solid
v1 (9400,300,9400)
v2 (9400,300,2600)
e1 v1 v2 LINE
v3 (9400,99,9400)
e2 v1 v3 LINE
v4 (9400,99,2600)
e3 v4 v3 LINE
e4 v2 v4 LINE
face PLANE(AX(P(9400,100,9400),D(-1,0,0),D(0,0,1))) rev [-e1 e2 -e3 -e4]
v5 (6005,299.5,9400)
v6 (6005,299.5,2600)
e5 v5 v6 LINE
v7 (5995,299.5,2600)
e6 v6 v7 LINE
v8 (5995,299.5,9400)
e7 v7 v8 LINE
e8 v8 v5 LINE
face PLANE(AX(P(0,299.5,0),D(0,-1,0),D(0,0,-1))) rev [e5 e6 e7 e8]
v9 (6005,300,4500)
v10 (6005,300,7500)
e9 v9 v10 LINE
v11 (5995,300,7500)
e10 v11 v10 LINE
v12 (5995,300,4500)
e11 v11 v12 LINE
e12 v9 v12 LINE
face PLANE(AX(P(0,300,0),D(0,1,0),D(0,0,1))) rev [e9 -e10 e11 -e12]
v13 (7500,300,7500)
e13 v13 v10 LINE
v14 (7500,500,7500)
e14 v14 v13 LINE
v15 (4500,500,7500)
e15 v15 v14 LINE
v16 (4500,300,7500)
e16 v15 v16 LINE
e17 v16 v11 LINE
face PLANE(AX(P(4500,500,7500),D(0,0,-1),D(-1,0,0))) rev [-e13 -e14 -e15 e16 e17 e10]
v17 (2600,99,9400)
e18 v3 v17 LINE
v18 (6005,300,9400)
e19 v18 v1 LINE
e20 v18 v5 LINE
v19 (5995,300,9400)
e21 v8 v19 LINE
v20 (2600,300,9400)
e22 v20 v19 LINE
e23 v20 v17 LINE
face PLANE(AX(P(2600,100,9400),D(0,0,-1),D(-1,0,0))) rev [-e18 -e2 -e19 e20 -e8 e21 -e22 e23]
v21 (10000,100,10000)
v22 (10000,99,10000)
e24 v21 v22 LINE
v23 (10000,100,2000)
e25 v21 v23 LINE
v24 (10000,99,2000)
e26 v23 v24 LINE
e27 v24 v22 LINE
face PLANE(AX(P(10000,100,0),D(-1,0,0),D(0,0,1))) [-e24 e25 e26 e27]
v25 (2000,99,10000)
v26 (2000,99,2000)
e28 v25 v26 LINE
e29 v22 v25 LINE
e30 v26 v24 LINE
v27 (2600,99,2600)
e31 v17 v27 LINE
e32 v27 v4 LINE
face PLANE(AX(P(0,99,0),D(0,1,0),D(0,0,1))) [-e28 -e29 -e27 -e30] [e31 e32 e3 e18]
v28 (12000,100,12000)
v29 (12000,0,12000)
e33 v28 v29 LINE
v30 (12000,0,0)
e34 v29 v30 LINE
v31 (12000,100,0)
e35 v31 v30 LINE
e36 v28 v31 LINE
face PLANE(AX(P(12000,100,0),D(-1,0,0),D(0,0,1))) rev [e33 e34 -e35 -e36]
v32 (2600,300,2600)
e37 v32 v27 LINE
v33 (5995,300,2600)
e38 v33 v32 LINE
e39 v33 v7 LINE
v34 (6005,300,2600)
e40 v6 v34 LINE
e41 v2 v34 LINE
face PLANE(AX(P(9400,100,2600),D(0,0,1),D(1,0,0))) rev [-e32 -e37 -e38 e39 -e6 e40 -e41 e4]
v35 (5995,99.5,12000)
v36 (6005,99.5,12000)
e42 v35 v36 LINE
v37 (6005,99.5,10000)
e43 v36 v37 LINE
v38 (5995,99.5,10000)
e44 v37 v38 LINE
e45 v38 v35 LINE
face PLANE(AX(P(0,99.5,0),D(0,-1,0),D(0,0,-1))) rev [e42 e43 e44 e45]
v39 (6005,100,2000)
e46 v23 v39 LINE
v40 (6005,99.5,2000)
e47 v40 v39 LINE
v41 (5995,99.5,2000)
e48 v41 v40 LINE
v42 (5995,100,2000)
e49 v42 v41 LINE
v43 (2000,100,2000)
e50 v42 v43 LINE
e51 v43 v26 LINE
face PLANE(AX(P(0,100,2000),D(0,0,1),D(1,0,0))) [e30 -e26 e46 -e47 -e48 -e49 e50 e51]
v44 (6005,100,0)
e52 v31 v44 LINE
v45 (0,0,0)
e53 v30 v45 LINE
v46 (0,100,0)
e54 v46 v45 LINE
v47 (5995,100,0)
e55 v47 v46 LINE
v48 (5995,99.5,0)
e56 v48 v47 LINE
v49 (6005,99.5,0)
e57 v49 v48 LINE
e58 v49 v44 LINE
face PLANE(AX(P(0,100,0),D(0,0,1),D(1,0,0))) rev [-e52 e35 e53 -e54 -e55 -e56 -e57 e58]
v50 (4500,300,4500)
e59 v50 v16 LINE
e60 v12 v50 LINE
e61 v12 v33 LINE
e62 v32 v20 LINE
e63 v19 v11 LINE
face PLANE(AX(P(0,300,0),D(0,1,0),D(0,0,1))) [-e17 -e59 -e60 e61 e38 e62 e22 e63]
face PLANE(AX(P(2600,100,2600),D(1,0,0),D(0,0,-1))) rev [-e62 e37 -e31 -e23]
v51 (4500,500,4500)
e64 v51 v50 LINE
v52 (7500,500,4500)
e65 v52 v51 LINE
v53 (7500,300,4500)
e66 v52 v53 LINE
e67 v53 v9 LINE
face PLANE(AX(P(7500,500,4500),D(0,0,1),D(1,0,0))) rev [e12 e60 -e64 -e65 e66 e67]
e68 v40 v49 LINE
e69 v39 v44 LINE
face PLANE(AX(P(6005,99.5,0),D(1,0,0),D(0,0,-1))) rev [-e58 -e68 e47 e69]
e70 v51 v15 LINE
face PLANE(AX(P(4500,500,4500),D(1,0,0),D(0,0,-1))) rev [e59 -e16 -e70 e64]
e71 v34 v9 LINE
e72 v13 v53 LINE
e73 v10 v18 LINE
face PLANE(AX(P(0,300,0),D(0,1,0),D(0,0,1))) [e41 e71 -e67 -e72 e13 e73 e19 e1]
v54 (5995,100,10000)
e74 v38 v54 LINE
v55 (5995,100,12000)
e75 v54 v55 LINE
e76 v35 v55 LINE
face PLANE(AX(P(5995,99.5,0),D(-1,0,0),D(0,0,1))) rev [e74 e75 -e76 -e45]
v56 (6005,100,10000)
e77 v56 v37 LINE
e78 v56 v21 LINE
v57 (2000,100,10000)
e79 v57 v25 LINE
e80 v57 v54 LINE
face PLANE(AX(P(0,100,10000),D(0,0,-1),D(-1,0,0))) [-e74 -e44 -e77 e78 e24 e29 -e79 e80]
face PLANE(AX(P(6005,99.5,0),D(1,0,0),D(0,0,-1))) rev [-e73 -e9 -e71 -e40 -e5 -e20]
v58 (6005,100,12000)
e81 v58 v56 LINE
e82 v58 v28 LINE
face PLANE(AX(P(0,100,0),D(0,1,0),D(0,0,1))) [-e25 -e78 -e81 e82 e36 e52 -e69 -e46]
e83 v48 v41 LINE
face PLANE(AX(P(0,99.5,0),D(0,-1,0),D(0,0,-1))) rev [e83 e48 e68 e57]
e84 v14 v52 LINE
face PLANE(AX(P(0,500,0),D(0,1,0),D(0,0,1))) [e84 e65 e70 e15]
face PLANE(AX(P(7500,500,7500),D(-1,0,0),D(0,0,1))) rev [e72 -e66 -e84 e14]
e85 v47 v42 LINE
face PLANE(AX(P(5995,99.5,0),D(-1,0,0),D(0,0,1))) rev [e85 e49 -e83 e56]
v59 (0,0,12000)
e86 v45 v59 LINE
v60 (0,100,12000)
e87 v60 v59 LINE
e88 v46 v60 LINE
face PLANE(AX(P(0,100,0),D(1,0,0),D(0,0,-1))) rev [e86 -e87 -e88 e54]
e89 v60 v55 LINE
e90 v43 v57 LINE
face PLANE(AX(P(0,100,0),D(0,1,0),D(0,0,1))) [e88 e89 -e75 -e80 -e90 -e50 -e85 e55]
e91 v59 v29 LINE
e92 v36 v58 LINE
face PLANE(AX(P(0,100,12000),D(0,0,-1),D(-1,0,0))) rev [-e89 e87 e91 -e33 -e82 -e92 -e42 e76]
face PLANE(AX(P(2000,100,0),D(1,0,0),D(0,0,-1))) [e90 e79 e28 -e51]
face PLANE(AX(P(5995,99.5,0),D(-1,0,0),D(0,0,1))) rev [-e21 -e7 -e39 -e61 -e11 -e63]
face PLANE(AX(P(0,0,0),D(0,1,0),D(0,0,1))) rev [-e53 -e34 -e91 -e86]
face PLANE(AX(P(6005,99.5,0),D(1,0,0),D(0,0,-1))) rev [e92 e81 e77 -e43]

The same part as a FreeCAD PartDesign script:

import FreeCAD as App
import Part
import Sketcher

V = App.Vector


def add_polygon(sketch, points):
    """Adds a closed chain of lines whose ends are joined by coincident constraints."""
    first, n = sketch.GeometryCount, len(points)
    for a, b in zip(points, points[1:] + points[:1]):
        sketch.addGeometry(Part.LineSegment(App.Vector(*a, 0), App.Vector(*b, 0)), False)
    for i in range(n):
        sketch.addConstraint(Sketcher.Constraint("Coincident", first + i, 2, first + (i + 1) % n, 1))

doc = App.newDocument("Part")
params = doc.addObject("Spreadsheet::Sheet", "Params")
for row, (alias, value) in enumerate([
    ("sketch1_width", "12000 mm"),
    ("sketch1_width2", "8000 mm"),
    ("pad1_length", "100 mm"),
    ("sketch2_width", "6800 mm"),
    ("pad2_length", "100 mm"),
    ("sketch3_width", "8000 mm"),
    ("sketch3_width2", "6800 mm"),
    ("pad3_length", "99 mm"),
    ("sketch4_width", "10 mm"),
    ("sketch4_height", "12000 mm"),
    ("pocket1_length", "0.5 mm"),
    ("sketch5_width", "3395 mm"),
    ("sketch5_height", "6800 mm"),
    ("pad4_length", "200 mm"),
    ("sketch6_width", "10 mm"),
    ("sketch6_height", "6800 mm"),
    ("pad5_length", "200 mm"),
    ("sketch7_width", "3000 mm"),
    ("pad6_length", "200 mm"),
], start=1):
    params.set(f"A{row}", alias)
    params.set(f"B{row}", "=" + value)
    params.setAlias(f"B{row}", alias)

body = doc.addObject("PartDesign::Body", "Body")

# Sketch on XZ plane
sketch1 = body.newObject("Sketcher::SketchObject", "Sketch")
sketch1.AttachmentSupport = (doc.getObject("XZ_Plane"), [""])
sketch1.MapMode = "FlatFace"
add_polygon(sketch1, [(0, 0), (0, 12000), (12000, 12000), (12000, 0)])  # lines 0-3
add_polygon(sketch1, [(10000, 10000), (2000, 10000), (2000, 2000), (10000, 2000)])  # lines 4-7
sketch1.addConstraint(Sketcher.Constraint("Vertical", 0))
sketch1.addConstraint(Sketcher.Constraint("Horizontal", 1))
sketch1.addConstraint(Sketcher.Constraint("Vertical", 2))
sketch1.addConstraint(Sketcher.Constraint("Horizontal", 3))
sketch1.addConstraint(Sketcher.Constraint("Horizontal", 4))
sketch1.addConstraint(Sketcher.Constraint("Vertical", 5))
sketch1.addConstraint(Sketcher.Constraint("Horizontal", 6))
sketch1.addConstraint(Sketcher.Constraint("Vertical", 7))
sketch1.addConstraint(Sketcher.Constraint("Coincident", 3, 2, -1, 1))
sketch1.addConstraint(Sketcher.Constraint("Equal", 3, 0))
sketch1.addConstraint(Sketcher.Constraint("Equal", 6, 5))
sketch1.addConstraint(Sketcher.Constraint("DistanceX", 1, 1, 1, 2, 12000.0))
sketch1.addConstraint(Sketcher.Constraint("DistanceX", 4, 2, 4, 1, 8000.0))
sketch1.addConstraint(Sketcher.Constraint("DistanceX", -1, 1, 4, 2, 2000.0))
sketch1.addConstraint(Sketcher.Constraint("DistanceY", -1, 1, 4, 2, 10000.0))
sketch1.setExpression("Constraints[19]", "Params.sketch1_width")
sketch1.setExpression("Constraints[20]", "Params.sketch1_width2")
pad1 = body.newObject("PartDesign::Pad", "Pad")
pad1.Profile = sketch1
pad1.setExpression("Length", "Params.pad1_length")
pad1.Reversed = True
body2 = doc.addObject("PartDesign::Body", "Body001")

# Sketch on XZ plane
sketch2 = body2.newObject("Sketcher::SketchObject", "Sketch001")
sketch2.AttachmentSupport = (doc.getObject("XZ_Plane001"), [""])
sketch2.MapMode = "FlatFace"
add_polygon(sketch2, [(2600, 2600), (2600, 9400), (9400, 9400), (9400, 2600)])  # lines 0-3
sketch2.addConstraint(Sketcher.Constraint("Vertical", 0))
sketch2.addConstraint(Sketcher.Constraint("Horizontal", 1))
sketch2.addConstraint(Sketcher.Constraint("Vertical", 2))
sketch2.addConstraint(Sketcher.Constraint("Horizontal", 3))
sketch2.addConstraint(Sketcher.Constraint("Equal", 3, 0))
sketch2.addConstraint(Sketcher.Constraint("DistanceX", 1, 1, 1, 2, 6800.0))
sketch2.addConstraint(Sketcher.Constraint("DistanceX", -1, 1, 0, 2, 2600.0))
sketch2.addConstraint(Sketcher.Constraint("DistanceY", -1, 1, 0, 2, 9400.0))
sketch2.setExpression("Constraints[9]", "Params.sketch2_width")
pad2 = body2.newObject("PartDesign::Pad", "Pad001")
pad2.Profile = sketch2
pad2.setExpression("Length", "Params.pad2_length")
pad2.Reversed = True
body.AllowCompound = True
doc.recompute()

boolean = body.newObject("PartDesign::Boolean", "Boolean")
boolean.Type = "Fuse"
boolean.addObjects([body2])

# Sketch on XZ plane
sketch3 = body.newObject("Sketcher::SketchObject", "Sketch002")
sketch3.AttachmentSupport = (doc.getObject("XZ_Plane"), [""])
sketch3.MapMode = "FlatFace"
add_polygon(sketch3, [(2000, 10000), (2000, 2000), (10000, 2000), (10000, 10000)])  # lines 0-3
add_polygon(sketch3, [(9400, 2600), (2600, 2600), (2600, 9400), (9400, 9400)])  # lines 4-7
sketch3.addConstraint(Sketcher.Constraint("Vertical", 0))
sketch3.addConstraint(Sketcher.Constraint("Horizontal", 1))
sketch3.addConstraint(Sketcher.Constraint("Vertical", 2))
sketch3.addConstraint(Sketcher.Constraint("Horizontal", 3))
sketch3.addConstraint(Sketcher.Constraint("Horizontal", 4))
sketch3.addConstraint(Sketcher.Constraint("Vertical", 5))
sketch3.addConstraint(Sketcher.Constraint("Horizontal", 6))
sketch3.addConstraint(Sketcher.Constraint("Vertical", 7))
sketch3.addConstraint(Sketcher.Constraint("Equal", 3, 0))
sketch3.addConstraint(Sketcher.Constraint("Equal", 6, 5))
sketch3.addConstraint(Sketcher.Constraint("DistanceX", 1, 1, 1, 2, 8000.0))
sketch3.addConstraint(Sketcher.Constraint("DistanceX", 4, 2, 4, 1, 6800.0))
sketch3.addConstraint(Sketcher.Constraint("DistanceX", -1, 1, 0, 2, 2000.0))
sketch3.addConstraint(Sketcher.Constraint("DistanceY", -1, 1, 0, 2, 2000.0))
sketch3.addConstraint(Sketcher.Constraint("DistanceX", -1, 1, 4, 2, 2600.0))
sketch3.addConstraint(Sketcher.Constraint("DistanceY", -1, 1, 4, 2, 2600.0))
sketch3.setExpression("Constraints[18]", "Params.sketch3_width")
sketch3.setExpression("Constraints[19]", "Params.sketch3_width2")
pad3 = body.newObject("PartDesign::Pad", "Pad002")
pad3.Profile = sketch3
pad3.setExpression("Length", "Params.pad3_length")
pad3.Reversed = True

# Sketch on XZ plane
sketch4 = body.newObject("Sketcher::SketchObject", "Sketch003")
sketch4.AttachmentSupport = (doc.getObject("XZ_Plane"), [""])
sketch4.MapMode = "FlatFace"
sketch4.AttachmentOffset = App.Placement(V(0, 0, -100), App.Rotation())
add_polygon(sketch4, [(5995, 0), (5995, 12000), (6005, 12000), (6005, 0)])  # lines 0-3
sketch4.addConstraint(Sketcher.Constraint("Vertical", 0))
sketch4.addConstraint(Sketcher.Constraint("Horizontal", 1))
sketch4.addConstraint(Sketcher.Constraint("Vertical", 2))
sketch4.addConstraint(Sketcher.Constraint("Horizontal", 3))
sketch4.addConstraint(Sketcher.Constraint("PointOnObject", 2, 2, -1))
sketch4.addConstraint(Sketcher.Constraint("DistanceX", 1, 1, 1, 2, 10.0))
sketch4.addConstraint(Sketcher.Constraint("DistanceY", 0, 1, 0, 2, 12000.0))
sketch4.addConstraint(Sketcher.Constraint("DistanceX", -1, 1, 0, 2, 5995.0))
sketch4.setExpression("Constraints[9]", "Params.sketch4_width")
sketch4.setExpression("Constraints[10]", "Params.sketch4_height")
pocket1 = body.newObject("PartDesign::Pocket", "Pocket")
pocket1.Profile = sketch4
pocket1.setExpression("Length", "Params.pocket1_length")
pocket1.Reversed = True

# Sketch on XZ plane
sketch5 = body.newObject("Sketcher::SketchObject", "Sketch004")
sketch5.AttachmentSupport = (doc.getObject("XZ_Plane"), [""])
sketch5.MapMode = "FlatFace"
sketch5.AttachmentOffset = App.Placement(V(0, 0, -100), App.Rotation())
add_polygon(sketch5, [(2600, 2600), (2600, 9400), (5995, 9400), (5995, 2600)])  # lines 0-3
add_polygon(sketch5, [(6005, 2600), (6005, 9400), (9400, 9400), (9400, 2600)])  # lines 4-7
sketch5.addConstraint(Sketcher.Constraint("Vertical", 0))
sketch5.addConstraint(Sketcher.Constraint("Horizontal", 1))
sketch5.addConstraint(Sketcher.Constraint("Vertical", 2))
sketch5.addConstraint(Sketcher.Constraint("Horizontal", 3))
sketch5.addConstraint(Sketcher.Constraint("Vertical", 4))
sketch5.addConstraint(Sketcher.Constraint("Horizontal", 5))
sketch5.addConstraint(Sketcher.Constraint("Vertical", 6))
sketch5.addConstraint(Sketcher.Constraint("Horizontal", 7))
sketch5.addConstraint(Sketcher.Constraint("Horizontal", 1, 2, 4, 2))
sketch5.addConstraint(Sketcher.Constraint("Horizontal", 3, 2, 6, 2))
sketch5.addConstraint(Sketcher.Constraint("Equal", 3, 5))
sketch5.addConstraint(Sketcher.Constraint("DistanceX", 1, 1, 1, 2, 3395.0))
sketch5.addConstraint(Sketcher.Constraint("DistanceY", 0, 1, 0, 2, 6800.0))
sketch5.addConstraint(Sketcher.Constraint("DistanceX", -1, 1, 0, 2, 2600.0))
sketch5.addConstraint(Sketcher.Constraint("DistanceY", -1, 1, 0, 2, 9400.0))
sketch5.addConstraint(Sketcher.Constraint("DistanceX", -1, 1, 4, 2, 6005.0))
sketch5.setExpression("Constraints[19]", "Params.sketch5_width")
sketch5.setExpression("Constraints[20]", "Params.sketch5_height")
pad4 = body.newObject("PartDesign::Pad", "Pad003")
pad4.Profile = sketch5
pad4.setExpression("Length", "Params.pad4_length")
pad4.Reversed = True

# Sketch on XZ plane
sketch6 = body.newObject("Sketcher::SketchObject", "Sketch005")
sketch6.AttachmentSupport = (doc.getObject("XZ_Plane"), [""])
sketch6.MapMode = "FlatFace"
sketch6.AttachmentOffset = App.Placement(V(0, 0, -99.5), App.Rotation())
add_polygon(sketch6, [(5995, 2600), (5995, 9400), (6005, 9400), (6005, 2600)])  # lines 0-3
sketch6.addConstraint(Sketcher.Constraint("Vertical", 0))
sketch6.addConstraint(Sketcher.Constraint("Horizontal", 1))
sketch6.addConstraint(Sketcher.Constraint("Vertical", 2))
sketch6.addConstraint(Sketcher.Constraint("Horizontal", 3))
sketch6.addConstraint(Sketcher.Constraint("DistanceX", 1, 1, 1, 2, 10.0))
sketch6.addConstraint(Sketcher.Constraint("DistanceY", 0, 1, 0, 2, 6800.0))
sketch6.addConstraint(Sketcher.Constraint("DistanceX", -1, 1, 0, 2, 5995.0))
sketch6.addConstraint(Sketcher.Constraint("DistanceY", -1, 1, 0, 2, 9400.0))
sketch6.setExpression("Constraints[8]", "Params.sketch6_width")
sketch6.setExpression("Constraints[9]", "Params.sketch6_height")
pad5 = body.newObject("PartDesign::Pad", "Pad004")
pad5.Profile = sketch6
pad5.setExpression("Length", "Params.pad5_length")
pad5.Reversed = True

# Sketch on XZ plane
sketch7 = body.newObject("Sketcher::SketchObject", "Sketch006")
sketch7.AttachmentSupport = (doc.getObject("XZ_Plane"), [""])
sketch7.MapMode = "FlatFace"
sketch7.AttachmentOffset = App.Placement(V(0, 0, -300), App.Rotation())
add_polygon(sketch7, [(4500, 4500), (4500, 7500), (7500, 7500), (7500, 4500)])  # lines 0-3
sketch7.addConstraint(Sketcher.Constraint("Vertical", 0))
sketch7.addConstraint(Sketcher.Constraint("Horizontal", 1))
sketch7.addConstraint(Sketcher.Constraint("Vertical", 2))
sketch7.addConstraint(Sketcher.Constraint("Horizontal", 3))
sketch7.addConstraint(Sketcher.Constraint("Equal", 3, 0))
sketch7.addConstraint(Sketcher.Constraint("DistanceX", 1, 1, 1, 2, 3000.0))
sketch7.addConstraint(Sketcher.Constraint("DistanceX", -1, 1, 0, 2, 4500.0))
sketch7.addConstraint(Sketcher.Constraint("DistanceY", -1, 1, 0, 2, 7500.0))
sketch7.setExpression("Constraints[9]", "Params.sketch7_width")
pad6 = body.newObject("PartDesign::Pad", "Pad005")
pad6.Profile = sketch7
pad6.setExpression("Length", "Params.pad6_length")
pad6.Reversed = True

doc.recompute()
